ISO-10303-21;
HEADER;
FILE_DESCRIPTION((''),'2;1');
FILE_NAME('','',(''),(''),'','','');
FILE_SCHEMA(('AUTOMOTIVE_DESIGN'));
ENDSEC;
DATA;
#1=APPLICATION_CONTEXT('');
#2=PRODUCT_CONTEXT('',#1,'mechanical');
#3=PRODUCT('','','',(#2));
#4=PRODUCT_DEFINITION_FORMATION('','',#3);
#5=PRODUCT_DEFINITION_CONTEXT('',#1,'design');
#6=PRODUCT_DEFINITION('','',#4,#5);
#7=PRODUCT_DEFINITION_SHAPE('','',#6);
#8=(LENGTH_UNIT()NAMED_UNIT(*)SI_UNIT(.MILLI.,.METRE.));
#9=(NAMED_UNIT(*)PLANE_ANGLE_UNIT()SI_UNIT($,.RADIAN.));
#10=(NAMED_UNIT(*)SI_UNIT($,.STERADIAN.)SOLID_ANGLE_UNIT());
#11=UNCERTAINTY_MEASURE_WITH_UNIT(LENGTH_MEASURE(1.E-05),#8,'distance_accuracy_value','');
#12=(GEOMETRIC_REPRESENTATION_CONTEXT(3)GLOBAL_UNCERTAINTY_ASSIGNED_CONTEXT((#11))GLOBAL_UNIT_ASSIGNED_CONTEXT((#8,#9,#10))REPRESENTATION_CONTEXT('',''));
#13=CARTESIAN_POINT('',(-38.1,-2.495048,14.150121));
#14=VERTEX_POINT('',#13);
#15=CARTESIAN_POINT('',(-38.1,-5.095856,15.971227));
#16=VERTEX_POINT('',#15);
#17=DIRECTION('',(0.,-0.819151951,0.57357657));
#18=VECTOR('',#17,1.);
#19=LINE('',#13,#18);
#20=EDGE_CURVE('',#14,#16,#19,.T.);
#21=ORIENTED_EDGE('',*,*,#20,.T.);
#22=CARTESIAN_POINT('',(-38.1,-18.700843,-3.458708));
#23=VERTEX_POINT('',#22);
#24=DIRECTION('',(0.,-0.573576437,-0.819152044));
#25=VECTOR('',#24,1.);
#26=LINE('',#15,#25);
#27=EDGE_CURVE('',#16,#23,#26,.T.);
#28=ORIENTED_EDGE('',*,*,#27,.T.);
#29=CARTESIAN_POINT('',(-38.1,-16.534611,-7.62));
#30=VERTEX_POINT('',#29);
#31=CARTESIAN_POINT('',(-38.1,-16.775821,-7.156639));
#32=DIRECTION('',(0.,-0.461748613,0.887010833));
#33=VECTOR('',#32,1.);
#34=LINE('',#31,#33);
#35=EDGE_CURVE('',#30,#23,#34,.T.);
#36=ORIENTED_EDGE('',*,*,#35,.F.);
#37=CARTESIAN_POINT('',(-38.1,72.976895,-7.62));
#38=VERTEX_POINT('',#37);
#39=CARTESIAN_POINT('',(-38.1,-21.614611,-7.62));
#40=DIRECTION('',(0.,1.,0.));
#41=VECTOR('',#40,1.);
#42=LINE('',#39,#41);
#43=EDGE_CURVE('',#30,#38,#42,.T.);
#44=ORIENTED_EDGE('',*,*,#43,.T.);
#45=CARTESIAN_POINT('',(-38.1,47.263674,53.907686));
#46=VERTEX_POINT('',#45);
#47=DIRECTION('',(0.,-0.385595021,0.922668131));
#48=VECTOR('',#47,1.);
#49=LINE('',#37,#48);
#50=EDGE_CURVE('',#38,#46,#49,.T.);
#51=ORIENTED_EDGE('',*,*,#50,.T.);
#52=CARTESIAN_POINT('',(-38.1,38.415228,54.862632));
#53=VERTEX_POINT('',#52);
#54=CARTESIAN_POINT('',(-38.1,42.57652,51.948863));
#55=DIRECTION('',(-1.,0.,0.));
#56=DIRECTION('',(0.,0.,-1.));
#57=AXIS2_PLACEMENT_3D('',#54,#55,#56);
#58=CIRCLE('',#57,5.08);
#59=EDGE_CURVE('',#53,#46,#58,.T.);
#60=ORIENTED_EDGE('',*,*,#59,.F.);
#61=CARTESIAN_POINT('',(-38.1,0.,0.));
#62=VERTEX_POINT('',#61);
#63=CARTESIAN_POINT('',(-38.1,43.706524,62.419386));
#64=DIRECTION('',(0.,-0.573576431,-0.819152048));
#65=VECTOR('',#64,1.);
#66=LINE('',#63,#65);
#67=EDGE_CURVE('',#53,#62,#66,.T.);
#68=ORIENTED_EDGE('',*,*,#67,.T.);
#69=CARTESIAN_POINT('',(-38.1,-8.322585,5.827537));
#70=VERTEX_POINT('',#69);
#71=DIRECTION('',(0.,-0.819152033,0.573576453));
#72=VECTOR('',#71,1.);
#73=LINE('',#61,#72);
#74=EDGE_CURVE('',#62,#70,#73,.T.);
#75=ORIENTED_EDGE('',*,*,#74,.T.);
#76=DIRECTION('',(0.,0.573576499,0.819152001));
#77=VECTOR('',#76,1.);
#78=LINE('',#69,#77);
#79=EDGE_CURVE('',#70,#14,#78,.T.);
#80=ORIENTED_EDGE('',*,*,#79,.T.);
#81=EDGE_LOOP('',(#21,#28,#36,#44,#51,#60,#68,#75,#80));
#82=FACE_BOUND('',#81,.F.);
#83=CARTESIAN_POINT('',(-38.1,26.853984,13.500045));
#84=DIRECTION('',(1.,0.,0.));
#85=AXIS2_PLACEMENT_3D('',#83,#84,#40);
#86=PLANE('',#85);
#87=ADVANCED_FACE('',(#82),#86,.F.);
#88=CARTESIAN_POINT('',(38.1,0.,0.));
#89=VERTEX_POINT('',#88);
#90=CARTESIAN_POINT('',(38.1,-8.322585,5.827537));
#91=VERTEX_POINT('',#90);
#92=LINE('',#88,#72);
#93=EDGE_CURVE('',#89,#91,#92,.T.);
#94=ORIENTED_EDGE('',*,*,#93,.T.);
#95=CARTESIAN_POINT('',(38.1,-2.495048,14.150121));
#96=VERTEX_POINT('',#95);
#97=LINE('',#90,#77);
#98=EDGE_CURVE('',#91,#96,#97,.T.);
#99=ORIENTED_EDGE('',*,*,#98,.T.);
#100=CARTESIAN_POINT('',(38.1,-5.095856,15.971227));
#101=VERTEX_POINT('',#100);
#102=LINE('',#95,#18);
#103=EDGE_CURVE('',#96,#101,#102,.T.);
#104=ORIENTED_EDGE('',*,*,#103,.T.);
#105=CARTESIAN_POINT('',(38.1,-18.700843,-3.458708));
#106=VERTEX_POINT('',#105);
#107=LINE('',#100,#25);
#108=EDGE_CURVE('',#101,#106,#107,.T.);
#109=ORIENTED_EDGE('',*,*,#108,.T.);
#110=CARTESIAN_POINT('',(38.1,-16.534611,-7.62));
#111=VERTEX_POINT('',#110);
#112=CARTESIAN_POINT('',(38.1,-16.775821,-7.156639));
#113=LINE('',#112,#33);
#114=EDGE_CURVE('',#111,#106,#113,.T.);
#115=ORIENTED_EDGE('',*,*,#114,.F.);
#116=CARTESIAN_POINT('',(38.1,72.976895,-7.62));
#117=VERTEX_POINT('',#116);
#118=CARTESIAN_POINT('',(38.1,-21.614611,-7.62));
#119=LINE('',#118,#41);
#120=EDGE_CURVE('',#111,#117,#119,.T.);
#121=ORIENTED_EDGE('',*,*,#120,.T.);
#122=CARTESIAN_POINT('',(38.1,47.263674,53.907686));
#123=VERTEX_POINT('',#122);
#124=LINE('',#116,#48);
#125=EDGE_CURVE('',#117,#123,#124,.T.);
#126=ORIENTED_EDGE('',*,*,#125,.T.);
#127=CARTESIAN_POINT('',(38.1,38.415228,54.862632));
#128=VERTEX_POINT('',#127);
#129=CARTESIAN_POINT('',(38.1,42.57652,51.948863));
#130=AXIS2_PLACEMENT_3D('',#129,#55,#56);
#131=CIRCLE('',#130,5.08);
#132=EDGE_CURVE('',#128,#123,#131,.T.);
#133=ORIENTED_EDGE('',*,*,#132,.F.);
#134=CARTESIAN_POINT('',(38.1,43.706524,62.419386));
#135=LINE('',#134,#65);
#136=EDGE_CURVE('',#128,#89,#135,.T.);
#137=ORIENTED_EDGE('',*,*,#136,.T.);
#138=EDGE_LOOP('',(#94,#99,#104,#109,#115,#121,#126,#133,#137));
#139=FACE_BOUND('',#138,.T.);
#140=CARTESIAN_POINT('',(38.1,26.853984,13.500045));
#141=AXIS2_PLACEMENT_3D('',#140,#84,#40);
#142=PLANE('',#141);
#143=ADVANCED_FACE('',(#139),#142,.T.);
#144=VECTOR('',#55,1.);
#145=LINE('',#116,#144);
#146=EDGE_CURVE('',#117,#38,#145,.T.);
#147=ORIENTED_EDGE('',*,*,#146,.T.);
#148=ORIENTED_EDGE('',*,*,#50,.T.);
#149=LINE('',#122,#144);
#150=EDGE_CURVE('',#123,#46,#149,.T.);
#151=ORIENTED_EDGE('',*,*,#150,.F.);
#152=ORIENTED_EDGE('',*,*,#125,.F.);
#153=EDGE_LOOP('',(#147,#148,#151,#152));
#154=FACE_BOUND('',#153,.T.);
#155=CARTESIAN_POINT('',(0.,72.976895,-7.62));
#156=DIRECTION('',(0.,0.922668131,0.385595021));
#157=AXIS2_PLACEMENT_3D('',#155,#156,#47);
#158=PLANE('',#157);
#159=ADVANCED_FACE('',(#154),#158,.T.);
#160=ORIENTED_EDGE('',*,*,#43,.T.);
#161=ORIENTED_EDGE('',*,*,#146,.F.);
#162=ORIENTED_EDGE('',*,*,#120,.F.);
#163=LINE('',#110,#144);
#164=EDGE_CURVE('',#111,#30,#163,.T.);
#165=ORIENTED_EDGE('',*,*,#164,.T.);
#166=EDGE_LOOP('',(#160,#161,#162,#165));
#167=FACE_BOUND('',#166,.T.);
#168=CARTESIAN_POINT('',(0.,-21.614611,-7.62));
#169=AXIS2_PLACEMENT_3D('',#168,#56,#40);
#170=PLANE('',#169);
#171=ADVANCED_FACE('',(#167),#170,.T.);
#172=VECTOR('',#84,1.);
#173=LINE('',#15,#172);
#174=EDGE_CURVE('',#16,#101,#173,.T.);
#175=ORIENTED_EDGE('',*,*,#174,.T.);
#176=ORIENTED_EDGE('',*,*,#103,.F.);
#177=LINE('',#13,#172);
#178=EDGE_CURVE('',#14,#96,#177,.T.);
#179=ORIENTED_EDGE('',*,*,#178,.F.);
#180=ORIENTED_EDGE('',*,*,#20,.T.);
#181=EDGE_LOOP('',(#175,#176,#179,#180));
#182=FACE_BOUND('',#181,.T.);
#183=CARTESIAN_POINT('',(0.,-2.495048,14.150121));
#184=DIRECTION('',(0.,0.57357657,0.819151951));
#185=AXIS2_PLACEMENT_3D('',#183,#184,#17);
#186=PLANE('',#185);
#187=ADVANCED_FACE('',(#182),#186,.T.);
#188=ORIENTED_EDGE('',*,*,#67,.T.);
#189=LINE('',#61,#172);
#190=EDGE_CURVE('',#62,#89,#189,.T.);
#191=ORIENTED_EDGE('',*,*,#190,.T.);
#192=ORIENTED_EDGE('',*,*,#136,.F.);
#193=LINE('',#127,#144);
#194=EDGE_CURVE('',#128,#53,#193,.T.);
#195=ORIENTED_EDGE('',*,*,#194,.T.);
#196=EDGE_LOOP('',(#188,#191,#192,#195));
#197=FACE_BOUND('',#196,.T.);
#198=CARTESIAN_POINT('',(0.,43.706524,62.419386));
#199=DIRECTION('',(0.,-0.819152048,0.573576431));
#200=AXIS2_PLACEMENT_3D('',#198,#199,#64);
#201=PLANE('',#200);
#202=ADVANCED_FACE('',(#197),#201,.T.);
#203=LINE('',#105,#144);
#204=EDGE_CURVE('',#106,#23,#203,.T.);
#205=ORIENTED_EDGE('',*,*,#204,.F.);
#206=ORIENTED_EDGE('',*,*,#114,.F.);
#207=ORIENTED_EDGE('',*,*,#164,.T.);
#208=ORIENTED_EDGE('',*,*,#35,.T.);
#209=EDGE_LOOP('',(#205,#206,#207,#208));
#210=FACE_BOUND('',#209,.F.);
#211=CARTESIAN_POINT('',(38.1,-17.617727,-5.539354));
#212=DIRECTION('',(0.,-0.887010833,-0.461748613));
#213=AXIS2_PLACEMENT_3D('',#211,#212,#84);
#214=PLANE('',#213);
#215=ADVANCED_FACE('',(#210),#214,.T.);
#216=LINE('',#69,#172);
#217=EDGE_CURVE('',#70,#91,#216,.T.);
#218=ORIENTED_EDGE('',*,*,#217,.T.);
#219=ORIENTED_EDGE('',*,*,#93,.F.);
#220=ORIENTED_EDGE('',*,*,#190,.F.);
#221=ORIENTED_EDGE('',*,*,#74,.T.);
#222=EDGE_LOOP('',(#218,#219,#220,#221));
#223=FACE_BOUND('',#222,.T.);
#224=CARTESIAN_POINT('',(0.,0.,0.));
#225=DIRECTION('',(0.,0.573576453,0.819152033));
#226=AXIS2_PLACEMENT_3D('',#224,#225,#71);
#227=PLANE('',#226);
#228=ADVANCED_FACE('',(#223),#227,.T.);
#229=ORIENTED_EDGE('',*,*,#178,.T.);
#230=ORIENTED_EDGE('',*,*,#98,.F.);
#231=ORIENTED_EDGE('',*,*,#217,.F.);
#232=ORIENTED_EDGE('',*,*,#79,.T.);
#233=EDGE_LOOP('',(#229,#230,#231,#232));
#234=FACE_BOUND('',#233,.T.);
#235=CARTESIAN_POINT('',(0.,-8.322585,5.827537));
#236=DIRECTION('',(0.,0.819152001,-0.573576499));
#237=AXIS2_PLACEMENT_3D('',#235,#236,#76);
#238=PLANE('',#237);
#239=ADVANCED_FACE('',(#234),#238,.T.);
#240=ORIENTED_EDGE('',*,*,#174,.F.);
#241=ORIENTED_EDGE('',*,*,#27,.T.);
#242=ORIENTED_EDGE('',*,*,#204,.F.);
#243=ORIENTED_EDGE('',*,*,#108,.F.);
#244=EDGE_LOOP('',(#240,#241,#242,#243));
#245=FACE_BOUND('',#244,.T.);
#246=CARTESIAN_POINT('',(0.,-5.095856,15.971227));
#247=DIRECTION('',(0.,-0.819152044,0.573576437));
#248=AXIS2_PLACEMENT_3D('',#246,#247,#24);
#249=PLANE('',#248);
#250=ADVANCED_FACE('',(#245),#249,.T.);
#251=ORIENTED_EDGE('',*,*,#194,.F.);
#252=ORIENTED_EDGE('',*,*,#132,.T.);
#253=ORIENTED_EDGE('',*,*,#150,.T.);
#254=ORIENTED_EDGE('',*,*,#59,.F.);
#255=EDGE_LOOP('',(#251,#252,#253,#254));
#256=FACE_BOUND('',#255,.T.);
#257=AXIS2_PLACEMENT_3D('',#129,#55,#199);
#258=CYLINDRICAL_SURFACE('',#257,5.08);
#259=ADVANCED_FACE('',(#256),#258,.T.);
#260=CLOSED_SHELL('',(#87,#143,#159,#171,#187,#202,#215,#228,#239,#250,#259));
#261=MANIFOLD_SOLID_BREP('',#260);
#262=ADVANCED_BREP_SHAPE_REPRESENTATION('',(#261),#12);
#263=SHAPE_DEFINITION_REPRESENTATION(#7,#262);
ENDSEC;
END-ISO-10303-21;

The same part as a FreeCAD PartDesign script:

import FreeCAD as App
import Part
import Sketcher
from FreeCAD import Vector
Q = App.Units.Quantity


def edges_at(feature, points):
    """Names of the edges that pass closest to the given points."""
    edges = feature.Shape.Edges
    near = lambda p: min(range(len(edges)), key=lambda i: edges[i].distToShape(Part.Vertex(*p))[0])
    return sorted({f"Edge{near(p) + 1}" for p in points})

doc = App.newDocument("Part")
params = doc.addObject("Spreadsheet::Sheet", "Params")
for row, (alias, value) in enumerate([
    ("sketch1_length", "3 in"),
    ("sketch1_length2", "0.4 in"),
    ("sketch1_length3", "0.125 in"),
    ("pad1_length", "3 in"),
    ("fillet_radius", "0.2 in"),
    ("chamfer_size", "0.2 in"),
], start=1):
    params.set(f"A{row}", alias)
    params.set(f"B{row}", "=" + value)
    params.setAlias(f"B{row}", alias)

body = doc.addObject("PartDesign::Body", "Body")

# Sketch on YZ plane
sketch1 = doc.addObject("Sketcher::SketchObject", "Sketch")
body.addObject(sketch1)
sketch1.AttachmentSupport = (doc.YZ_Plane, [""])
sketch1.MapMode = "FlatFace"
sketch1.addGeometry([
    Part.LineSegment(Vector(43.7, 62.4, 0), Vector(0, 0, 0)),  # 0
    Part.LineSegment(Vector(0, 0, 0), Vector(-8.3, 5.8, 0)),  # 1
    Part.LineSegment(Vector(-8.3, 5.8, 0), Vector(-2.5, 14.2, 0)),  # 2
    Part.LineSegment(Vector(-2.5, 14.2, 0), Vector(-5.1, 16, 0)),  # 3
    Part.LineSegment(Vector(-5.1, 16, 0), Vector(-21.6, -7.6, 0)),  # 4
    Part.LineSegment(Vector(-21.6, -7.6, 0), Vector(73, -7.6, 0)),  # 5
    Part.LineSegment(Vector(73, -7.6, 0), Vector(43.7, 62.4, 0)),  # 6
], False)
sketch1.addConstraint([
    Sketcher.Constraint("Coincident", 0, 2, 1, 1),
    Sketcher.Constraint("Coincident", 1, 2, 2, 1),
    Sketcher.Constraint("Coincident", 2, 2, 3, 1),
    Sketcher.Constraint("Coincident", 3, 2, 4, 1),
    Sketcher.Constraint("Coincident", 4, 2, 5, 1),
    Sketcher.Constraint("Coincident", 5, 2, 6, 1),
    Sketcher.Constraint("Coincident", 6, 2, 0, 1),
    Sketcher.Constraint("Horizontal", 5),
    Sketcher.Constraint("Coincident", 0, 2, -1, 1),
    Sketcher.Constraint("Perpendicular", 0, 1),
    Sketcher.Constraint("Perpendicular", 1, 2),
    Sketcher.Constraint("Perpendicular", 2, 3),
    Sketcher.Constraint("Perpendicular", 3, 4),
    Sketcher.Constraint("Equal", 1, 2),
    Sketcher.Constraint("Distance", 0, Q("3 in")),
    Sketcher.Constraint("Angle", 0, Q("-125 deg")),
    Sketcher.Constraint("Distance", 1, Q("0.4 in")),
    Sketcher.Constraint("DistanceY", 4, 2, -1, 1, Q("0.3 in")),
    Sketcher.Constraint("Distance", 3, Q("0.125 in")),
    Sketcher.Constraint("Distance", 6, 75.909619),
])
sketch1.setExpression("Constraints[14]", "Params.sketch1_length")
sketch1.setExpression("Constraints[16]", "Params.sketch1_length2")
sketch1.setExpression("Constraints[18]", "Params.sketch1_length3")
pad1 = doc.addObject("PartDesign::Pad", "Pad")
body.addObject(pad1)
pad1.Profile = sketch1
pad1.setExpression("Length", "Params.pad1_length")
pad1.Midplane = True
doc.recompute()

fillet = doc.addObject("PartDesign::Fillet", "Fillet")
body.addObject(fillet)
fillet.Base = (pad1, edges_at(pad1, [(0, 43.707, 62.419)]))
fillet.setExpression("Radius", "Params.fillet_radius")
doc.recompute()

chamfer = doc.addObject("PartDesign::Chamfer", "Chamfer")
body.addObject(chamfer)
chamfer.Base = (fillet, edges_at(fillet, [(0, -21.615, -7.62)]))
chamfer.setExpression("Size", "Params.chamfer_size")

doc.recompute()
